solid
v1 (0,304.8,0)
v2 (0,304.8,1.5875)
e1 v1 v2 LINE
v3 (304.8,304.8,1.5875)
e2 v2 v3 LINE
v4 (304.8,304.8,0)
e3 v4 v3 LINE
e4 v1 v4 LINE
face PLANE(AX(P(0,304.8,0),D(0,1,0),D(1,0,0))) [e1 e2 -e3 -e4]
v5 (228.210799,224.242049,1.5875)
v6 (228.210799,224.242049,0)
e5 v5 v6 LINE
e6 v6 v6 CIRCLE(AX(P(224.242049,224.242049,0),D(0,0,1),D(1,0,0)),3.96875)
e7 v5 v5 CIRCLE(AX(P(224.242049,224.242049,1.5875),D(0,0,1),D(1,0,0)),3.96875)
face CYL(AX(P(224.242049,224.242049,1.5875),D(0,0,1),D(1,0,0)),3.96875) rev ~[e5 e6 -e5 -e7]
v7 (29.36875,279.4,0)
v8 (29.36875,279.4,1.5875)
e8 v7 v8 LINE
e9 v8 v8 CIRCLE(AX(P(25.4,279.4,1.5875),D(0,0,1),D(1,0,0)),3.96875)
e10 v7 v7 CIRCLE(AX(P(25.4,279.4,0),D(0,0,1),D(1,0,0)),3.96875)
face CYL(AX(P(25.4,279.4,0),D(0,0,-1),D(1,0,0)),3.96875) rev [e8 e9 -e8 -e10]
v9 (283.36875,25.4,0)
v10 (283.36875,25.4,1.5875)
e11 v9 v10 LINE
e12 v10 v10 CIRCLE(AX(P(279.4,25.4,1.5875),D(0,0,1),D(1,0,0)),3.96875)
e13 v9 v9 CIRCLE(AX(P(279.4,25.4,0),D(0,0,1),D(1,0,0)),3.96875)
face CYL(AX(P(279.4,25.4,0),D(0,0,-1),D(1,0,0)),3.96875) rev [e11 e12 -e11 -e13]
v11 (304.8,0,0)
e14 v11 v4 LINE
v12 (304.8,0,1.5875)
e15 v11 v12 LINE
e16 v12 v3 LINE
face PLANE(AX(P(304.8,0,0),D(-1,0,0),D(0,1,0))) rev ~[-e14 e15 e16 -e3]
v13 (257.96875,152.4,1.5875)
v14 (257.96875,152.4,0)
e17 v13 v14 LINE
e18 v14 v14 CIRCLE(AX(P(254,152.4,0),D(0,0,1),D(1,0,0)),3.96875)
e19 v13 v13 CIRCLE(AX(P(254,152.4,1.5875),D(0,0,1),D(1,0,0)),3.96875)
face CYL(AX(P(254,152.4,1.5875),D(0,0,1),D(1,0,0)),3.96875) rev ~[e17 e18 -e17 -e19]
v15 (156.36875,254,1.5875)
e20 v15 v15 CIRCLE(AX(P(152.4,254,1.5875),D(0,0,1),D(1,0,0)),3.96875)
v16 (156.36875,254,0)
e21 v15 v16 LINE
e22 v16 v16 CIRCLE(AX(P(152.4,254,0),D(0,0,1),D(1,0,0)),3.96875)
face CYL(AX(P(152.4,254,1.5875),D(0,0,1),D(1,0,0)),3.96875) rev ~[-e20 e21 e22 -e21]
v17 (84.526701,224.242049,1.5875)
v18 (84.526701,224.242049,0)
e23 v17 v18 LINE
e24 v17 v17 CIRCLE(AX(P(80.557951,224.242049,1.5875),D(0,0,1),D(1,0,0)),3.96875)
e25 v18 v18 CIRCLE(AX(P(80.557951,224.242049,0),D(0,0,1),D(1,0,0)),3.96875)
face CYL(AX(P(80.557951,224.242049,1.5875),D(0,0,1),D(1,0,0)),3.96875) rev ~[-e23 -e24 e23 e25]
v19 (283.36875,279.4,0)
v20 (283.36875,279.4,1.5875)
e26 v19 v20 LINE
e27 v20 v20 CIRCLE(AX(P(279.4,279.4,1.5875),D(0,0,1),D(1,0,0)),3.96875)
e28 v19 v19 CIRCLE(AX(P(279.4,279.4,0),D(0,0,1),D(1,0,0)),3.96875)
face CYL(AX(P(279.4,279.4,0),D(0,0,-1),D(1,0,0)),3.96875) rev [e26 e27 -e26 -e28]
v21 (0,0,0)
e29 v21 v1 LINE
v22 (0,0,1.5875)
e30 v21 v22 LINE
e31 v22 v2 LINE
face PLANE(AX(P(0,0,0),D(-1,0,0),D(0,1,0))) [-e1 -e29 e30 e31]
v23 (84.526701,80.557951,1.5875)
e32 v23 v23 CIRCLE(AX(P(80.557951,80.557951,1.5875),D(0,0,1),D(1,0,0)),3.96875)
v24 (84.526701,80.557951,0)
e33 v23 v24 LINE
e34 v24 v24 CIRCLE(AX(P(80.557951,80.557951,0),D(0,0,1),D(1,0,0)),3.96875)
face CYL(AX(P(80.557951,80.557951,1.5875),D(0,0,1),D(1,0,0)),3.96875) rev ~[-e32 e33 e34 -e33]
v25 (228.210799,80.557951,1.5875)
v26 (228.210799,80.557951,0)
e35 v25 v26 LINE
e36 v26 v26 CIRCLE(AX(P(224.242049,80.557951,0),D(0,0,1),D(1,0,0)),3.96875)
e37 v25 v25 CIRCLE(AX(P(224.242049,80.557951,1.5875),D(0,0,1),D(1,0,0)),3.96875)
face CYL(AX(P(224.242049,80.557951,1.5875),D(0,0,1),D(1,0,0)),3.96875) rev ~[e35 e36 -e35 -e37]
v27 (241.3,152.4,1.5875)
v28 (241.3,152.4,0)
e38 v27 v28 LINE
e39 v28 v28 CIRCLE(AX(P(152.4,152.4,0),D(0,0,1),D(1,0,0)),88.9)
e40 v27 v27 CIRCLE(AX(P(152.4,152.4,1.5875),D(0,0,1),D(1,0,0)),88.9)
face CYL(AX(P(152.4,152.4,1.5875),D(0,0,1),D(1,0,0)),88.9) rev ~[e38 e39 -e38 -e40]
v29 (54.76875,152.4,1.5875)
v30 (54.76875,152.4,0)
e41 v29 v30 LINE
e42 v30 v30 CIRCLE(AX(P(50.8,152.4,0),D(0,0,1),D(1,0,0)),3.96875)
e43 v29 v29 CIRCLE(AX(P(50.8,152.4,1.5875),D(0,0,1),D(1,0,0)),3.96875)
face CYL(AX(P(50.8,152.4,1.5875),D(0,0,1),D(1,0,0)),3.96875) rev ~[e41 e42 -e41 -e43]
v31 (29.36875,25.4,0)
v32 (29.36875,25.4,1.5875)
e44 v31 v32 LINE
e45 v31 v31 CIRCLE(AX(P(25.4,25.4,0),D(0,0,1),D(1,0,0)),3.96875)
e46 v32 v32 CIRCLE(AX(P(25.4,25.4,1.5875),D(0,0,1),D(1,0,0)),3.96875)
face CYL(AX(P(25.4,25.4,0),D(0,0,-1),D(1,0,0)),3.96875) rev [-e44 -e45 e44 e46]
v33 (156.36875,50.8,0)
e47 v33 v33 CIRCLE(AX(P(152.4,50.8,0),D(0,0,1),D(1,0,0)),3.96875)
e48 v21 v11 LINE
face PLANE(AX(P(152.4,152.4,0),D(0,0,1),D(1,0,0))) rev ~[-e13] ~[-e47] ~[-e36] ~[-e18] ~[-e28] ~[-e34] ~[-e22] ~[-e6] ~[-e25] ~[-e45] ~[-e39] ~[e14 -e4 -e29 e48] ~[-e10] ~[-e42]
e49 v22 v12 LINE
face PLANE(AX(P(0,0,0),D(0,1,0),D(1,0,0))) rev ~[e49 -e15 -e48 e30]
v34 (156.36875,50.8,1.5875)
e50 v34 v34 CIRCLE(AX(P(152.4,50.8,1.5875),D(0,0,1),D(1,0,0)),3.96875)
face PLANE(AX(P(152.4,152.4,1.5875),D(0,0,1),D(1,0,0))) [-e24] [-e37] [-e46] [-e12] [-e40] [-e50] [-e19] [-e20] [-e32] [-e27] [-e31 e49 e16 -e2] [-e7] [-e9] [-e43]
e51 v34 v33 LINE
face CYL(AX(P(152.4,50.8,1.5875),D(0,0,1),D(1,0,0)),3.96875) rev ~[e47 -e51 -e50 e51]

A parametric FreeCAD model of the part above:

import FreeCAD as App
import Part
import Sketcher

V = App.Vector
Q = App.Units.Quantity


def add_polygon(sketch, points):
    """Adds a closed chain of lines whose ends are joined by coincident constraints."""
    first, n = sketch.GeometryCount, len(points)
    for a, b in zip(points, points[1:] + points[:1]):
        sketch.addGeometry(Part.LineSegment(App.Vector(*a, 0), App.Vector(*b, 0)), False)
    for i in range(n):
        sketch.addConstraint(Sketcher.Constraint("Coincident", first + i, 2, first + (i + 1) % n, 1))

doc = App.newDocument("Part")
params = doc.addObject("Spreadsheet::Sheet", "Params")
for row, (alias, value) in enumerate([
    ("sketch1_width", "12 in"),
    ("sketch1_diameter", "0.3125 in"),
    ("pad1_length", "0.0625 in"),
    ("sketch2_diameter", "7 in"),
    ("pocket1_length", "1 in"),
    ("sketch3_diameter", "0.3125 in"),
    ("pocket2_length", "1 in"),
    ("sketch4_diameter", "0.3125 in"),
    ("pocket3_length", "1 in"),
], start=1):
    params.set(f"A{row}", alias)
    params.set(f"B{row}", "=" + value)
    params.setAlias(f"B{row}", alias)

body = doc.addObject("PartDesign::Body", "Body")

sketch1 = body.newObject("Sketcher::SketchObject", "Sketch")
sketch1.AttachmentSupport = (doc.getObject("XY_Plane"), [""])
sketch1.MapMode = "FlatFace"
add_polygon(sketch1, [(0, 304.8), (0, 0), (304.8, 0), (304.8, 304.8)])
sketch1.addGeometry(Part.Circle(V(25.4, 25.4, 0), V(0, 0, 1), 3.96875), False)
sketch1.addGeometry(Part.Circle(V(279.4, 25.4, 0), V(0, 0, 1), 3.96875), False)
sketch1.addGeometry(Part.Circle(V(25.4, 279.4, 0), V(0, 0, 1), 3.96875), False)
sketch1.addGeometry(Part.Circle(V(279.4, 279.4, 0), V(0, 0, 1), 3.96875), False)
sketch1.addConstraint(Sketcher.Constraint("Vertical", 0))
sketch1.addConstraint(Sketcher.Constraint("Horizontal", 1))
sketch1.addConstraint(Sketcher.Constraint("Vertical", 2))
sketch1.addConstraint(Sketcher.Constraint("Horizontal", 3))
sketch1.addConstraint(Sketcher.Constraint("Coincident", 0, 2, -1, 1))
sketch1.addConstraint(Sketcher.Constraint("Equal", 4, 5))
sketch1.addConstraint(Sketcher.Constraint("Equal", 5, 6))
sketch1.addConstraint(Sketcher.Constraint("Equal", 6, 7))
sketch1.addConstraint(Sketcher.Constraint("Horizontal", 4, 3, 5, 3))
sketch1.addConstraint(Sketcher.Constraint("Horizontal", 6, 3, 7, 3))
sketch1.addConstraint(Sketcher.Constraint("Vertical", 4, 3, 6, 3))
sketch1.addConstraint(Sketcher.Constraint("Vertical", 5, 3, 7, 3))
sketch1.addConstraint(Sketcher.Constraint("Equal", 3, 0))
sketch1.addConstraint(Sketcher.Constraint("DistanceX", 1, 1, 1, 2, Q("12 in")))
sketch1.addConstraint(Sketcher.Constraint("Diameter", 4, Q("0.3125 in")))
sketch1.addConstraint(Sketcher.Constraint("DistanceX", -1, 1, 4, 3, Q("1 in")))
sketch1.addConstraint(Sketcher.Constraint("DistanceY", -1, 1, 4, 3, Q("1 in")))
sketch1.addConstraint(Sketcher.Constraint("DistanceX", -1, 1, 5, 3, Q("11 in")))
sketch1.addConstraint(Sketcher.Constraint("DistanceY", -1, 1, 6, 3, Q("11 in")))
sketch1.setExpression("Constraints[17]", "Params.sketch1_width")
sketch1.setExpression("Constraints[18]", "Params.sketch1_diameter")
pad1 = body.newObject("PartDesign::Pad", "Pad")
pad1.Profile = sketch1
pad1.setExpression("Length", "Params.pad1_length")

sketch2 = body.newObject("Sketcher::SketchObject", "Sketch001")
sketch2.AttachmentSupport = (doc.getObject("XY_Plane"), [""])
sketch2.MapMode = "FlatFace"
sketch2.AttachmentOffset = App.Placement(V(0, 0, 0.0625 * 25.4), App.Rotation())
sketch2.addGeometry(Part.Circle(V(152.4, 152.4, 0), V(0, 0, 1), 88.9), False)
sketch2.addConstraint(Sketcher.Constraint("Diameter", 0, Q("7 in")))
sketch2.addConstraint(Sketcher.Constraint("DistanceX", -1, 1, 0, 3, Q("6 in")))
sketch2.addConstraint(Sketcher.Constraint("DistanceY", -1, 1, 0, 3, Q("6 in")))
sketch2.setExpression("Constraints[0]", "Params.sketch2_diameter")
pocket1 = body.newObject("PartDesign::Pocket", "Pocket")
pocket1.Profile = sketch2
pocket1.setExpression("Length", "Params.pocket1_length")

sketch3 = body.newObject("Sketcher::SketchObject", "Sketch002")
sketch3.AttachmentSupport = (doc.getObject("XY_Plane"), [""])
sketch3.MapMode = "FlatFace"
sketch3.AttachmentOffset = App.Placement(V(0, 0, 0.0625 * 25.4), App.Rotation())
sketch3.addGeometry(Part.Circle(V(152.4, 254, 0), V(0, 0, 1), 3.96875), False)
sketch3.addGeometry(Part.Circle(V(152.4, 50.8, 0), V(0, 0, 1), 3.96875), False)
sketch3.addGeometry(Part.Circle(V(50.8, 152.4, 0), V(0, 0, 1), 3.96875), False)
sketch3.addGeometry(Part.Circle(V(254, 152.4, 0), V(0, 0, 1), 3.96875), False)
sketch3.addGeometry(Part.Circle(V(80.557951, 224.242049, 0), V(0, 0, 1), 3.96875), False)
sketch3.addGeometry(Part.Circle(V(224.242049, 80.557951, 0), V(0, 0, 1), 3.96875), False)
sketch3.addGeometry(Part.Circle(V(224.242049, 224.242049, 0), V(0, 0, 1), 3.96875), False)
sketch3.addGeometry(Part.Circle(V(80.557951, 80.557951, 0), V(0, 0, 1), 3.96875), False)
sketch3.addConstraint(Sketcher.Constraint("Equal", 0, 1))
sketch3.addConstraint(Sketcher.Constraint("Equal", 1, 2))
sketch3.addConstraint(Sketcher.Constraint("Equal", 2, 3))
sketch3.addConstraint(Sketcher.Constraint("Equal", 3, 4))
sketch3.addConstraint(Sketcher.Constraint("Equal", 4, 5))
sketch3.addConstraint(Sketcher.Constraint("Equal", 5, 6))
sketch3.addConstraint(Sketcher.Constraint("Equal", 6, 7))
sketch3.addConstraint(Sketcher.Constraint("Horizontal", 2, 3, 3, 3))
sketch3.addConstraint(Sketcher.Constraint("Horizontal", 4, 3, 6, 3))
sketch3.addConstraint(Sketcher.Constraint("Horizontal", 5, 3, 7, 3))
sketch3.addConstraint(Sketcher.Constraint("Vertical", 0, 3, 1, 3))
sketch3.addConstraint(Sketcher.Constraint("Vertical", 5, 3, 6, 3))
sketch3.addConstraint(Sketcher.Constraint("Vertical", 4, 3, 7, 3))
sketch3.addConstraint(Sketcher.Constraint("Diameter", 0, Q("0.3125 in")))
sketch3.addConstraint(Sketcher.Constraint("DistanceX", -1, 1, 0, 3, Q("6 in")))
sketch3.addConstraint(Sketcher.Constraint("DistanceY", -1, 1, 0, 3, Q("10 in")))
sketch3.addConstraint(Sketcher.Constraint("DistanceY", -1, 1, 1, 3, Q("2 in")))
sketch3.addConstraint(Sketcher.Constraint("DistanceX", -1, 1, 2, 3, Q("2 in")))
sketch3.addConstraint(Sketcher.Constraint("DistanceY", -1, 1, 2, 3, Q("6 in")))
sketch3.addConstraint(Sketcher.Constraint("DistanceX", -1, 1, 3, 3, Q("10 in")))
sketch3.addConstraint(Sketcher.Constraint("DistanceX", 4, 3, 5, 3, Q("143.684098 mm")))
sketch3.addConstraint(Sketcher.Constraint("DistanceY", 5, 3, 4, 3, Q("143.684098 mm")))
sketch3.addConstraint(Sketcher.Constraint("DistanceX", -1, 1, 4, 3, Q("80.557951 mm")))
sketch3.addConstraint(Sketcher.Constraint("DistanceY", -1, 1, 4, 3, Q("224.242049 mm")))
sketch3.setExpression("Constraints[13]", "Params.sketch3_diameter")
pocket2 = body.newObject("PartDesign::Pocket", "Pocket001")
pocket2.Profile = sketch3
pocket2.setExpression("Length", "Params.pocket2_length")

sketch4 = body.newObject("Sketcher::SketchObject", "Sketch003")
sketch4.AttachmentSupport = (doc.getObject("XY_Plane"), [""])
sketch4.MapMode = "FlatFace"
sketch4.AttachmentOffset = App.Placement(V(0, 0, 0.0625 * 25.4), App.Rotation())
sketch4.addGeometry(Part.Circle(V(152.4, 254, 0), V(0, 0, 1), 3.96875), False)
sketch4.addGeometry(Part.Circle(V(152.4, 50.8, 0), V(0, 0, 1), 3.96875), False)
sketch4.addGeometry(Part.Circle(V(50.8, 152.4, 0), V(0, 0, 1), 3.96875), False)
sketch4.addGeometry(Part.Circle(V(254, 152.4, 0), V(0, 0, 1), 3.96875), False)
sketch4.addGeometry(Part.Circle(V(80.557951, 224.242049, 0), V(0, 0, 1), 3.96875), False)
sketch4.addGeometry(Part.Circle(V(224.242049, 80.557951, 0), V(0, 0, 1), 3.96875), False)
sketch4.addGeometry(Part.Circle(V(224.242049, 224.242049, 0), V(0, 0, 1), 3.96875), False)
sketch4.addGeometry(Part.Circle(V(80.557951, 80.557951, 0), V(0, 0, 1), 3.96875), False)
sketch4.addConstraint(Sketcher.Constraint("Equal", 0, 1))
sketch4.addConstraint(Sketcher.Constraint("Equal", 1, 2))
sketch4.addConstraint(Sketcher.Constraint("Equal", 2, 3))
sketch4.addConstraint(Sketcher.Constraint("Equal", 3, 4))
sketch4.addConstraint(Sketcher.Constraint("Equal", 4, 5))
sketch4.addConstraint(Sketcher.Constraint("Equal", 5, 6))
sketch4.addConstraint(Sketcher.Constraint("Equal", 6, 7))
sketch4.addConstraint(Sketcher.Constraint("Horizontal", 2, 3, 3, 3))
sketch4.addConstraint(Sketcher.Constraint("Horizontal", 4, 3, 6, 3))
sketch4.addConstraint(Sketcher.Constraint("Horizontal", 5, 3, 7, 3))
sketch4.addConstraint(Sketcher.Constraint("Vertical", 0, 3, 1, 3))
sketch4.addConstraint(Sketcher.Constraint("Vertical", 5, 3, 6, 3))
sketch4.addConstraint(Sketcher.Constraint("Vertical", 4, 3, 7, 3))
sketch4.addConstraint(Sketcher.Constraint("Diameter", 0, Q("0.3125 in")))
sketch4.addConstraint(Sketcher.Constraint("DistanceX", -1, 1, 0, 3, Q("6 in")))
sketch4.addConstraint(Sketcher.Constraint("DistanceY", -1, 1, 0, 3, Q("10 in")))
sketch4.addConstraint(Sketcher.Constraint("DistanceY", -1, 1, 1, 3, Q("2 in")))
sketch4.addConstraint(Sketcher.Constraint("DistanceX", -1, 1, 2, 3, Q("2 in")))
sketch4.addConstraint(Sketcher.Constraint("DistanceY", -1, 1, 2, 3, Q("6 in")))
sketch4.addConstraint(Sketcher.Constraint("DistanceX", -1, 1, 3, 3, Q("10 in")))
sketch4.addConstraint(Sketcher.Constraint("DistanceX", 4, 3, 5, 3, Q("143.684098 mm")))
sketch4.addConstraint(Sketcher.Constraint("DistanceY", 5, 3, 4, 3, Q("143.684098 mm")))
sketch4.addConstraint(Sketcher.Constraint("DistanceX", -1, 1, 4, 3, Q("80.557951 mm")))
sketch4.addConstraint(Sketcher.Constraint("DistanceY", -1, 1, 4, 3, Q("224.242049 mm")))
sketch4.setExpression("Constraints[13]", "Params.sketch4_diameter")
pocket3 = body.newObject("PartDesign::Pocket", "Pocket002")
pocket3.Profile = sketch4
pocket3.setExpression("Length", "Params.pocket3_length")

doc.recompute()
